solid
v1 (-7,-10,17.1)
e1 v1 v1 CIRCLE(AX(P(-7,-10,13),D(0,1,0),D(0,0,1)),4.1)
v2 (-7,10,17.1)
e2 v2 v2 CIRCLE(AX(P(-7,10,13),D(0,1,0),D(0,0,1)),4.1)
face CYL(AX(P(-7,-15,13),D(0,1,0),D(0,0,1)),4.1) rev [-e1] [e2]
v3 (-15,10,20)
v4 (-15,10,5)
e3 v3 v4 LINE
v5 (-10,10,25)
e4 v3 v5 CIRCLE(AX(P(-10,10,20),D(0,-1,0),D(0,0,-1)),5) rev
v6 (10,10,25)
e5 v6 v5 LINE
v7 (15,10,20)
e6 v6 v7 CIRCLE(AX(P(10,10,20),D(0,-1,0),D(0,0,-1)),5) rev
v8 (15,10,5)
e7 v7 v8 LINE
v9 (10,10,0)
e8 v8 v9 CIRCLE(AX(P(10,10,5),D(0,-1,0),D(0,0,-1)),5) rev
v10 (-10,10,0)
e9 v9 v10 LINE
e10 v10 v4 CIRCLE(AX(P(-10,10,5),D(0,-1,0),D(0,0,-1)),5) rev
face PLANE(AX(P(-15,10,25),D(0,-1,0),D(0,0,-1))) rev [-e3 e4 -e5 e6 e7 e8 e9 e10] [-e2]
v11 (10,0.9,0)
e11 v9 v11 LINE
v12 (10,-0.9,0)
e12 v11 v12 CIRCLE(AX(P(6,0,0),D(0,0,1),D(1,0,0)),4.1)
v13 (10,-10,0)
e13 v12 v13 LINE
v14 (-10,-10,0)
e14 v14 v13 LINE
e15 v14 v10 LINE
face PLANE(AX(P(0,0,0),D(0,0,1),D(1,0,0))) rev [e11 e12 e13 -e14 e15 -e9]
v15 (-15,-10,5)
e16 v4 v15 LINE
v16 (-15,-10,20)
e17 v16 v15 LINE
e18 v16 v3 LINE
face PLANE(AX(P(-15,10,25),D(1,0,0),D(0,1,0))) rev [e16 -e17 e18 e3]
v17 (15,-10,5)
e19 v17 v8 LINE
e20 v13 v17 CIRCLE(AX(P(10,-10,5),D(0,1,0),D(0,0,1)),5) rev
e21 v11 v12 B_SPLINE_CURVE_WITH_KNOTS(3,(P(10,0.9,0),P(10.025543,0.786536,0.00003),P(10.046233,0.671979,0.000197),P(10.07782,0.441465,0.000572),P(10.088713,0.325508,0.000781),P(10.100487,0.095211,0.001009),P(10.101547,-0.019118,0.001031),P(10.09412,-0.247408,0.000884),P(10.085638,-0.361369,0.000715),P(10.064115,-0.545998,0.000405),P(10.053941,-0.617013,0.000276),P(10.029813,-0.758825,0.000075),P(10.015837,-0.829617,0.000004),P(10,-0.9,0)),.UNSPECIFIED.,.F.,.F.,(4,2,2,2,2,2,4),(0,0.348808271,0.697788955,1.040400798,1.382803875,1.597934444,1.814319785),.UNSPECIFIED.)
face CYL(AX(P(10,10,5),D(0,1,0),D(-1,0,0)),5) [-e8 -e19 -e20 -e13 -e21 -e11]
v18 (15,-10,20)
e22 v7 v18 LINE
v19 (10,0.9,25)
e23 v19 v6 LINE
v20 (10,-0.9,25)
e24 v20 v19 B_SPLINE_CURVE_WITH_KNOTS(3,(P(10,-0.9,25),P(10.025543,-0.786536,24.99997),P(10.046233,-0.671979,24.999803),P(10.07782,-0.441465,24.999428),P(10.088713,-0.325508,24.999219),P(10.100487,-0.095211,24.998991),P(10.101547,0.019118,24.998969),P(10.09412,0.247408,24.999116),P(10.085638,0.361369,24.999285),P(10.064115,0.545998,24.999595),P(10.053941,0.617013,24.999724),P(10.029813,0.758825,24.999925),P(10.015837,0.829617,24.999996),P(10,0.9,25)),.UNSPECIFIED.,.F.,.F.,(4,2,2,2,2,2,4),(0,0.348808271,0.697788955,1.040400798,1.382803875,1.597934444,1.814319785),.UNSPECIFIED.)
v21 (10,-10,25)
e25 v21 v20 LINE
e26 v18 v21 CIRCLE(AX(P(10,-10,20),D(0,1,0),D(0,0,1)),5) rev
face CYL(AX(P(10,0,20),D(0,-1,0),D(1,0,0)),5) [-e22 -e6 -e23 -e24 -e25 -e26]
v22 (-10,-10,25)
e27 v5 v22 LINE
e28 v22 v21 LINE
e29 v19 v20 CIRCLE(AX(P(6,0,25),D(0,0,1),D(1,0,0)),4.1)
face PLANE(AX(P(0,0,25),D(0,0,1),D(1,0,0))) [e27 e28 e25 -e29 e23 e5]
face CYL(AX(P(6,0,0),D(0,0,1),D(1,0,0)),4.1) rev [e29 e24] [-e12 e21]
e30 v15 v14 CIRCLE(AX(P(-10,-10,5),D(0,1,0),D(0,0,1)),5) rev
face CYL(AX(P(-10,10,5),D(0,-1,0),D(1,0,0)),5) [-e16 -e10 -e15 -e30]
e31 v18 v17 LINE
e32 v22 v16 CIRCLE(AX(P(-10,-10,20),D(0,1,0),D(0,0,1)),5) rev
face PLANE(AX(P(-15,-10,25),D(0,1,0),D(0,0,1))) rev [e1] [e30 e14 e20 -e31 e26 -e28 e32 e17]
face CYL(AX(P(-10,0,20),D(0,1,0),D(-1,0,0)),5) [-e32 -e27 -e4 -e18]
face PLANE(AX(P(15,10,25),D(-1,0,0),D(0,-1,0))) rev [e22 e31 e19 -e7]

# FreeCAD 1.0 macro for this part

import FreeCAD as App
import Part
import Sketcher
from FreeCAD import Vector


def edges_at(feature, points):
    """Names of the edges that pass closest to the given points."""
    edges = feature.Shape.Edges
    near = lambda p: min(range(len(edges)), key=lambda i: edges[i].distToShape(Part.Vertex(*p))[0])
    return sorted({f"Edge{near(p) + 1}" for p in points})

doc = App.newDocument("Part")
body = doc.addObject("PartDesign::Body", "Body")

# Sketch on XY plane
sketch1 = doc.addObject("Sketcher::SketchObject", "Sketch")
body.addObject(sketch1)
sketch1.AttachmentSupport = (doc.XY_Plane, [""])
sketch1.MapMode = "FlatFace"
sketch1.addGeometry(Part.LineSegment(Vector(-15, 10, 0), Vector(-15, -10, 0)), False)
sketch1.addGeometry(Part.LineSegment(Vector(-15, -10, 0), Vector(15, -10, 0)), False)
sketch1.addGeometry(Part.LineSegment(Vector(15, -10, 0), Vector(15, 10, 0)), False)
sketch1.addGeometry(Part.LineSegment(Vector(15, 10, 0), Vector(-15, 10, 0)), False)
sketch1.addConstraint(Sketcher.Constraint("Coincident", 0, 2, 1, 1))
sketch1.addConstraint(Sketcher.Constraint("Coincident", 1, 2, 2, 1))
sketch1.addConstraint(Sketcher.Constraint("Coincident", 2, 2, 3, 1))
sketch1.addConstraint(Sketcher.Constraint("Coincident", 3, 2, 0, 1))
sketch1.addConstraint(Sketcher.Constraint("Vertical", 0))
sketch1.addConstraint(Sketcher.Constraint("Horizontal", 1))
sketch1.addConstraint(Sketcher.Constraint("Vertical", 2))
sketch1.addConstraint(Sketcher.Constraint("Horizontal", 3))
sketch1.addConstraint(Sketcher.Constraint("Symmetric", 0, 2, 2, 2, -1, 1))
sketch1.addConstraint(Sketcher.Constraint("DistanceX", 1, 1, 1, 2, 30.0))
sketch1.addConstraint(Sketcher.Constraint("DistanceY", 0, 2, 0, 1, 20.0))
pad1 = doc.addObject("PartDesign::Pad", "Pad")
body.addObject(pad1)
pad1.Profile = sketch1
pad1.Length = 25

# Sketch on XY plane
sketch2 = doc.addObject("Sketcher::SketchObject", "Sketch001")
body.addObject(sketch2)
sketch2.AttachmentSupport = (doc.XY_Plane, [""])
sketch2.MapMode = "FlatFace"
sketch2.AttachmentOffset = App.Placement(Vector(0, 0, 25), App.Rotation())
sketch2.addGeometry(Part.Circle(Vector(6, 0, 0), Vector(0, 0, 1), 4.1), False)
sketch2.addConstraint(Sketcher.Constraint("PointOnObject", 0, 3, -1))
sketch2.addConstraint(Sketcher.Constraint("Diameter", 0, 8.2))
sketch2.addConstraint(Sketcher.Constraint("DistanceX", -1, 1, 0, 3, 6.0))
pocket1 = doc.addObject("PartDesign::Pocket", "Pocket")
body.addObject(pocket1)
pocket1.Profile = sketch2
pocket1.Length = 25

# Sketch on XZ plane
sketch3 = doc.addObject("Sketcher::SketchObject", "Sketch002")
body.addObject(sketch3)
sketch3.AttachmentSupport = (doc.XZ_Plane, [""])
sketch3.MapMode = "FlatFace"
sketch3.AttachmentOffset = App.Placement(Vector(0, 0, -10), App.Rotation())
sketch3.addGeometry(Part.Circle(Vector(-7, 13, 0), Vector(0, 0, 1), 4.1), False)
sketch3.addConstraint(Sketcher.Constraint("Diameter", 0, 8.2))
sketch3.addConstraint(Sketcher.Constraint("DistanceX", 0, 3, -1, 1, 7.0))
sketch3.addConstraint(Sketcher.Constraint("DistanceY", -1, 1, 0, 3, 13.0))
pocket2 = doc.addObject("PartDesign::Pocket", "Pocket001")
body.addObject(pocket2)
pocket2.Profile = sketch3
pocket2.Length = 25
pocket2.Reversed = True
doc.recompute()

fillet = doc.addObject("PartDesign::Fillet", "Fillet")
body.addObject(fillet)
fillet.Base = (pocket2, edges_at(pocket2, [
    (-15, 0, 25),
    (15, 0, 25),
    (-15, 0, 0),
    (15, 0, 0),
]))
fillet.Radius = 5

doc.recompute()
